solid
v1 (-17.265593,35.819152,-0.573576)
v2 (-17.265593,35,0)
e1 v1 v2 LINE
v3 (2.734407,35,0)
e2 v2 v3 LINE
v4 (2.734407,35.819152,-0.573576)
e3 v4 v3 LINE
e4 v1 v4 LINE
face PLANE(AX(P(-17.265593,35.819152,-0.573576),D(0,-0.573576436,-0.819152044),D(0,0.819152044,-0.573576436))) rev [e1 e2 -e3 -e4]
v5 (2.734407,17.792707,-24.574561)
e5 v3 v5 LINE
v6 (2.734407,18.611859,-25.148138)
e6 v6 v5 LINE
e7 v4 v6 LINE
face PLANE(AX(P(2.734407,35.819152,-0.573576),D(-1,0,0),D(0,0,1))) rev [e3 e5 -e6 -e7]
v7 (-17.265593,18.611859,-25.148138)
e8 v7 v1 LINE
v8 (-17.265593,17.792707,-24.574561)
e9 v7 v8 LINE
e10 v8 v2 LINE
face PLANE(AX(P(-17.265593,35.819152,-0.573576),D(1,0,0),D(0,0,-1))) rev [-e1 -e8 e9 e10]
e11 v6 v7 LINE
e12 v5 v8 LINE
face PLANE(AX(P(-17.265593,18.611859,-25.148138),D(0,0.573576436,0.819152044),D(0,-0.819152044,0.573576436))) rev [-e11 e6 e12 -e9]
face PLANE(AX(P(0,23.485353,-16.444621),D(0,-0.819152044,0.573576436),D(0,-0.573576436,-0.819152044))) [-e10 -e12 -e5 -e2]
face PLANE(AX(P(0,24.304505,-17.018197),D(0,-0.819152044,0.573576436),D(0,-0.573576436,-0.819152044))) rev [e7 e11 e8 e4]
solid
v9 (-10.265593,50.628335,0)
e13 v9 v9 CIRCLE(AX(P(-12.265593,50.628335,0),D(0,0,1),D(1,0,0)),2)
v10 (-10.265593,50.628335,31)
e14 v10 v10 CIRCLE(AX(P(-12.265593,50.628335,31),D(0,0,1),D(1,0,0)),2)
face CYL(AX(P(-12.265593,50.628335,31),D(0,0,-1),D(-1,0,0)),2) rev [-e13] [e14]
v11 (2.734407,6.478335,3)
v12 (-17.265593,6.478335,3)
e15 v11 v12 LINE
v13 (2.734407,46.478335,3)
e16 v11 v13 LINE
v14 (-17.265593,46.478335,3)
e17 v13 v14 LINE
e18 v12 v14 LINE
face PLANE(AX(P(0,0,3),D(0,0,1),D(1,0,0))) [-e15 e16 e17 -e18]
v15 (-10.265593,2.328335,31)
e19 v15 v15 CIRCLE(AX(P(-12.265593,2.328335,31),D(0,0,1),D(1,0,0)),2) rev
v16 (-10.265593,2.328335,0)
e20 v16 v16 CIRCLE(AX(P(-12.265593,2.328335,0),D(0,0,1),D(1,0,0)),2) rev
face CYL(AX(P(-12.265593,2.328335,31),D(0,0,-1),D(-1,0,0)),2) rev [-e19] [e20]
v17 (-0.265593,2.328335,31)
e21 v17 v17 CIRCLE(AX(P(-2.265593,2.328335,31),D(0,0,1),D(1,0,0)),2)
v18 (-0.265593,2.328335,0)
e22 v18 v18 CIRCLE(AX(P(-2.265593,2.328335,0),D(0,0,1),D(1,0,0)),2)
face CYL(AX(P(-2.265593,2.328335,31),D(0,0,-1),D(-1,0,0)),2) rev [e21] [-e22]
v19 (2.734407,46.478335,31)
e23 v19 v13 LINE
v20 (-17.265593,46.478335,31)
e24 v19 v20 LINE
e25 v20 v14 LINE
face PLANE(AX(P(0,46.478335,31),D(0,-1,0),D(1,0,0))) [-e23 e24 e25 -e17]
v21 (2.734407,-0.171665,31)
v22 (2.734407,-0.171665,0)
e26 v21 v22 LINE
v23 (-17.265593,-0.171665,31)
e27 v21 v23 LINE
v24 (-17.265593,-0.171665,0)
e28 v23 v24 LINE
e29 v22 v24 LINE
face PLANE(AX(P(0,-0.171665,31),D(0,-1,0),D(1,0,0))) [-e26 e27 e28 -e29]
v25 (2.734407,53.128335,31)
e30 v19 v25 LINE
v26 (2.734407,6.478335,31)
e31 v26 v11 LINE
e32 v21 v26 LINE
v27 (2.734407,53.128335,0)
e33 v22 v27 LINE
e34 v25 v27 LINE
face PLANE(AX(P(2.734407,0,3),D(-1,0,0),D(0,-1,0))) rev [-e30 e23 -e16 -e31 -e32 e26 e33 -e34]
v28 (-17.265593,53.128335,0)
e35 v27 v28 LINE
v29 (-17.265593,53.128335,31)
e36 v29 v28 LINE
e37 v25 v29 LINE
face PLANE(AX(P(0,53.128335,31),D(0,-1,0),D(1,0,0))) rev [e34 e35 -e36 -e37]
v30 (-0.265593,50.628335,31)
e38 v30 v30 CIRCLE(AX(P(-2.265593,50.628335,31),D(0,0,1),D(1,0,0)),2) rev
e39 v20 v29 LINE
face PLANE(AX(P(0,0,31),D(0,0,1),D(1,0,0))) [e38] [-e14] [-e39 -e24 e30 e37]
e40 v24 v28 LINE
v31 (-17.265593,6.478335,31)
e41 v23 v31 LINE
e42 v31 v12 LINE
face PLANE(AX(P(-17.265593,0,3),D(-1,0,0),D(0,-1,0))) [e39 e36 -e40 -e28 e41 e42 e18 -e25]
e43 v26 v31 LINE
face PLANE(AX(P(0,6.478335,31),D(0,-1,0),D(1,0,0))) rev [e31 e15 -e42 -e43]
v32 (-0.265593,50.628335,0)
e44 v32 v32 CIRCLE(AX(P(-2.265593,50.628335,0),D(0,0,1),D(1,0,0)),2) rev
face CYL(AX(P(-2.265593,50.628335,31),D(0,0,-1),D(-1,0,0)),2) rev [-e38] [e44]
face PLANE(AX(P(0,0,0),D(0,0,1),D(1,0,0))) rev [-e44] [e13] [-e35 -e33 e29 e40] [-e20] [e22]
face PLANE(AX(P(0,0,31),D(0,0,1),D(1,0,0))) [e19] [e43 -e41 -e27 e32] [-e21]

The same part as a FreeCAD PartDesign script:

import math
import FreeCAD as App
import Part
import Sketcher

V = App.Vector


def add_polygon(sketch, points):
    """Adds a closed chain of lines whose ends are joined by coincident constraints."""
    first, n = sketch.GeometryCount, len(points)
    for a, b in zip(points, points[1:] + points[:1]):
        sketch.addGeometry(Part.LineSegment(App.Vector(*a, 0), App.Vector(*b, 0)), False)
    for i in range(n):
        sketch.addConstraint(Sketcher.Constraint("Coincident", first + i, 2, first + (i + 1) % n, 1))

doc = App.newDocument("Part")
body = doc.addObject("PartDesign::Body", "Body")

# Sketch on XY plane
sketch1 = body.newObject("Sketcher::SketchObject", "Sketch")
sketch1.AttachmentSupport = (doc.getObject("XY_Plane"), [""])
sketch1.MapMode = "FlatFace"
add_polygon(sketch1, [(-17, 46), (-17, 6), (3, 6), (3, 46)])  # lines 0-3
sketch1.addConstraint(Sketcher.Constraint("Vertical", 0))
sketch1.addConstraint(Sketcher.Constraint("Horizontal", 1))
sketch1.addConstraint(Sketcher.Constraint("Vertical", 2))
sketch1.addConstraint(Sketcher.Constraint("Horizontal", 3))
sketch1.addConstraint(Sketcher.Constraint("DistanceX", 1, 1, 1, 2, 20.0))
sketch1.addConstraint(Sketcher.Constraint("DistanceY", 0, 2, 0, 1, 40.0))
sketch1.addConstraint(Sketcher.Constraint("DistanceX", 0, 2, -1, 1, 17.265593))
sketch1.addConstraint(Sketcher.Constraint("DistanceY", -1, 1, 0, 2, 6.478335))
pad1 = body.newObject("PartDesign::Pad", "Pad")
pad1.Profile = sketch1
pad1.Length = 3

# Sketch on XY plane
sketch2 = body.newObject("Sketcher::SketchObject", "Sketch001")
sketch2.AttachmentSupport = (doc.getObject("XY_Plane"), [""])
sketch2.MapMode = "FlatFace"
add_polygon(sketch2, [(-17.3, 53.1), (-17.3, 46.5), (2.7, 46.5), (2.7, 53.1)])  # lines 0-3
sketch2.addGeometry(Part.Circle(V(-12.3, 50.6, 0), V(0, 0, 1), 2), False)  # 4
sketch2.addGeometry(Part.Circle(V(-2.3, 50.6, 0), V(0, 0, 1), 2), False)  # 5
add_polygon(sketch2, [(-17.3, -0.2), (2.7, -0.2), (2.7, 6.5), (-17.3, 6.5)])  # lines 6-9
sketch2.addGeometry(Part.Circle(V(-12.3, 2.3, 0), V(0, 0, 1), 2), False)  # 10
sketch2.addGeometry(Part.ArcOfCircle(Part.Circle(V(-2.3, 2.3, 0), V(0, 0, 1), 2), math.radians(0), math.radians(270)), False)  # 11
sketch2.addGeometry(Part.ArcOfCircle(Part.Circle(V(-2.3, 2.3, 0), V(0, 0, 1), 2), math.radians(-90), math.radians(0)), False)  # 12
sketch2.addConstraint(Sketcher.Constraint("Tangent", 11, 1, 12, 2))
sketch2.addConstraint(Sketcher.Constraint("Coincident", 12, 1, 11, 2))
sketch2.addConstraint(Sketcher.Constraint("Vertical", 0))
sketch2.addConstraint(Sketcher.Constraint("Horizontal", 1))
sketch2.addConstraint(Sketcher.Constraint("Vertical", 2))
sketch2.addConstraint(Sketcher.Constraint("Horizontal", 3))
sketch2.addConstraint(Sketcher.Constraint("Horizontal", 6))
sketch2.addConstraint(Sketcher.Constraint("Vertical", 7))
sketch2.addConstraint(Sketcher.Constraint("Horizontal", 8))
sketch2.addConstraint(Sketcher.Constraint("Vertical", 9))
sketch2.addConstraint(Sketcher.Constraint("Equal", 4, 5))
sketch2.addConstraint(Sketcher.Constraint("Equal", 5, 10))
sketch2.addConstraint(Sketcher.Constraint("Equal", 10, 11))
sketch2.addConstraint(Sketcher.Constraint("Horizontal", 4, 3, 5, 3))
sketch2.addConstraint(Sketcher.Constraint("Horizontal", 10, 3, 11, 3))
sketch2.addConstraint(Sketcher.Constraint("Horizontal", 12, 3, 11, 1))
sketch2.addConstraint(Sketcher.Constraint("Vertical", 4, 3, 10, 3))
sketch2.addConstraint(Sketcher.Constraint("Vertical", 5, 3, 11, 3))
sketch2.addConstraint(Sketcher.Constraint("Vertical", 2, 2, 6, 2))
sketch2.addConstraint(Sketcher.Constraint("Vertical", 3, 2, 8, 2))
sketch2.addConstraint(Sketcher.Constraint("Vertical", 11, 3, 12, 1))
sketch2.addConstraint(Sketcher.Constraint("Equal", 2, 7))
sketch2.addConstraint(Sketcher.Constraint("Diameter", 4, 4.0))
sketch2.addConstraint(Sketcher.Constraint("DistanceX", 1, 1, 1, 2, 20.0))
sketch2.addConstraint(Sketcher.Constraint("DistanceX", 4, 3, 5, 3, 10.0))
sketch2.addConstraint(Sketcher.Constraint("DistanceX", 0, 2, 4, 3, 5.0))
sketch2.addConstraint(Sketcher.Constraint("DistanceY", 7, 2, 1, 2, 40.0))
sketch2.addConstraint(Sketcher.Constraint("DistanceY", 0, 2, 0, 1, 6.65))
sketch2.addConstraint(Sketcher.Constraint("DistanceY", 10, 3, 4, 3, 48.3))
sketch2.addConstraint(Sketcher.Constraint("DistanceY", 5, 3, 2, 2, 2.5))
sketch2.addConstraint(Sketcher.Constraint("DistanceX", 4, 3, -1, 1, 12.265593))
sketch2.addConstraint(Sketcher.Constraint("DistanceY", -1, 1, 4, 3, 50.628335))
pad2 = body.newObject("PartDesign::Pad", "Pad001")
pad2.Profile = sketch2
pad2.Length = 31
body2 = doc.addObject("PartDesign::Body", "Body001")

# Sketch on an angled plane
sketch3 = body2.newObject("Sketcher::SketchObject", "Sketch002")
sketch3.Placement = App.Placement(V(0, 23.485353, -16.444621), App.Rotation(V(1, 0, 0), V(0, -0.573576436, -0.819152044), V(0, 0.819152044, -0.573576436), "ZXY"))
add_polygon(sketch3, [(-17, 10), (-17, -20), (3, -20), (3, 10)])  # lines 0-3
sketch3.addConstraint(Sketcher.Constraint("Vertical", 0))
sketch3.addConstraint(Sketcher.Constraint("Horizontal", 1))
sketch3.addConstraint(Sketcher.Constraint("Vertical", 2))
sketch3.addConstraint(Sketcher.Constraint("Horizontal", 3))
sketch3.addConstraint(Sketcher.Constraint("DistanceX", 1, 1, 1, 2, 20.0))
sketch3.addConstraint(Sketcher.Constraint("DistanceY", 0, 2, 0, 1, 30.0))
sketch3.addConstraint(Sketcher.Constraint("DistanceX", 0, 2, -1, 1, 17.265593))
sketch3.addConstraint(Sketcher.Constraint("DistanceY", 0, 2, -1, 1, 20.075175))
pad3 = body2.newObject("PartDesign::Pad", "Pad002")
pad3.Profile = sketch3
pad3.Length = 1

doc.recompute()
